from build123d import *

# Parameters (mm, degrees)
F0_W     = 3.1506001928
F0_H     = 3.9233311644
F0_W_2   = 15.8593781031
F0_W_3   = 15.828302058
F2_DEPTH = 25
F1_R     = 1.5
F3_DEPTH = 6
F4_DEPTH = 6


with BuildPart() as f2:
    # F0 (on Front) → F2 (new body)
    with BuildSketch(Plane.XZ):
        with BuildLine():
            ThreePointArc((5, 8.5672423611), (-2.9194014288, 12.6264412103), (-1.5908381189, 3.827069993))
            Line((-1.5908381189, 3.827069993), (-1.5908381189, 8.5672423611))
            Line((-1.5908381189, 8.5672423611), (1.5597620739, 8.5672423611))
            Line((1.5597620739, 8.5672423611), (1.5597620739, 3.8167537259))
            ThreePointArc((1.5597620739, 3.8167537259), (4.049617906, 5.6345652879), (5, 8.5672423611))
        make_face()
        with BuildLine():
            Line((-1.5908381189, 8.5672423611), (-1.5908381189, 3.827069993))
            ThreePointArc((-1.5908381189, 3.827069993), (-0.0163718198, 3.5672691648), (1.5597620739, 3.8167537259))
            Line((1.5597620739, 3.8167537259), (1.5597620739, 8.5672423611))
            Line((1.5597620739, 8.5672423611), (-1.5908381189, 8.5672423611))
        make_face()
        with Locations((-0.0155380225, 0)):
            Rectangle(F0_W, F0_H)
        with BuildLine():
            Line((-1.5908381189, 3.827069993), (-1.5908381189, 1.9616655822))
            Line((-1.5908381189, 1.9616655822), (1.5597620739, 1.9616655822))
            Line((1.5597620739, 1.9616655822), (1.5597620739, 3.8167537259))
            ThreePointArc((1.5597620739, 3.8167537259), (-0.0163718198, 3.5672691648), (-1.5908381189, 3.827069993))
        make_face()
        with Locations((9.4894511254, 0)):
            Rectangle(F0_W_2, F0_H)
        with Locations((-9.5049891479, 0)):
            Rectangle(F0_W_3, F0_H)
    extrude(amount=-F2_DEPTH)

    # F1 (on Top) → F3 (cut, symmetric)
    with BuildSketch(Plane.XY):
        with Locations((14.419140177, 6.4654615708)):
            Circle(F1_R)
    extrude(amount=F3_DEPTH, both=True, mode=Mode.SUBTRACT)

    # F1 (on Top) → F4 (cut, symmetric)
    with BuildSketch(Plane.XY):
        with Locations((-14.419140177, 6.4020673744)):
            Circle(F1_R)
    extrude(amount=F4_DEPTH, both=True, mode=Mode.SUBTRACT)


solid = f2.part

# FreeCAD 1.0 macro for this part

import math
import FreeCAD as App
import Part
import Sketcher

V = App.Vector

doc = App.newDocument("Part")
body = doc.addObject("PartDesign::Body", "Body")

sketch1 = body.newObject("Sketcher::SketchObject", "Sketch")
sketch1.AttachmentSupport = (doc.getObject("XZ_Plane"), [""])
sketch1.MapMode = "FlatFace"
sketch1.addGeometry([
    Part.ArcOfCircle(Part.Circle(V(0, 8.6, 0), V(0, 0, 1), 5), math.radians(0), math.radians(251)),
    Part.LineSegment(V(-1.6, 3.8, 0), V(-1.6, 2, 0)),
    Part.LineSegment(V(-1.6, 2, 0), V(-17.4, 2, 0)),
    Part.LineSegment(V(-17.4, 2, 0), V(-17.4, -2, 0)),
    Part.LineSegment(V(-17.4, -2, 0), V(17.4, -2, 0)),
    Part.LineSegment(V(17.4, -2, 0), V(17.4, 2, 0)),
    Part.LineSegment(V(17.4, 2, 0), V(1.6, 2, 0)),
    Part.LineSegment(V(1.6, 2, 0), V(1.6, 3.8, 0)),
    Part.ArcOfCircle(Part.Circle(V(0, 8.6, 0), V(0, 0, 1), 5), math.radians(-72), math.radians(0)),
], False)
sketch1.addConstraint([
    Sketcher.Constraint("Coincident", 0, 2, 1, 1),
    Sketcher.Constraint("Coincident", 1, 2, 2, 1),
    Sketcher.Constraint("Coincident", 2, 2, 3, 1),
    Sketcher.Constraint("Coincident", 3, 2, 4, 1),
    Sketcher.Constraint("Coincident", 4, 2, 5, 1),
    Sketcher.Constraint("Coincident", 5, 2, 6, 1),
    Sketcher.Constraint("Coincident", 6, 2, 7, 1),
    Sketcher.Constraint("Coincident", 7, 2, 8, 1),
    Sketcher.Constraint("Tangent", 8, 2, 0, 1),
    Sketcher.Constraint("Vertical", 1),
    Sketcher.Constraint("Horizontal", 2),
    Sketcher.Constraint("Vertical", 3),
    Sketcher.Constraint("Horizontal", 4),
    Sketcher.Constraint("Vertical", 5),
    Sketcher.Constraint("Horizontal", 6),
    Sketcher.Constraint("Vertical", 7),
    Sketcher.Constraint("Equal", 0, 8),
    Sketcher.Constraint("Symmetric", 2, 2, 4, 2, -1, 1),
    Sketcher.Constraint("PointOnObject", 0, 3, -2),
    Sketcher.Constraint("Horizontal", 2, 2, 5, 2),
    Sketcher.Constraint("Horizontal", 0, 3, 8, 2),
    Sketcher.Constraint("Radius", 0, 5.0),
    Sketcher.Constraint("DistanceX", 4, 1, 4, 2, 34.83828),
    Sketcher.Constraint("DistanceX", 6, 2, 6, 1, 15.859378),
    Sketcher.Constraint("DistanceY", 3, 2, 3, 1, 3.923331),
    Sketcher.Constraint("DistanceY", 7, 1, 7, 2, 1.855088),
    Sketcher.Constraint("DistanceX", 1, 2, 6, 2, 3.1506),
])
pad1 = body.newObject("PartDesign::Pad", "Pad")
pad1.Profile = sketch1
pad1.Length = 25
pad1.Reversed = True

sketch2 = body.newObject("Sketcher::SketchObject", "Sketch001")
sketch2.AttachmentSupport = (doc.getObject("XY_Plane"), [""])
sketch2.MapMode = "FlatFace"
sketch2.addGeometry(Part.Circle(V(14.4, 6.5, 0), V(0, 0, 1), 1.5), False)
sketch2.addConstraint([
    Sketcher.Constraint("Diameter", 0, 3.0),
    Sketcher.Constraint("DistanceX", -1, 1, 0, 3, 14.41914),
    Sketcher.Constraint("DistanceY", -1, 1, 0, 3, 6.465462),
])
pocket1 = body.newObject("PartDesign::Pocket", "Pocket")
pocket1.Profile = sketch2
pocket1.Length = 12
pocket1.Midplane = True

sketch3 = body.newObject("Sketcher::SketchObject", "Sketch002")
sketch3.AttachmentSupport = (doc.getObject("XY_Plane"), [""])
sketch3.MapMode = "FlatFace"
sketch3.addGeometry(Part.Circle(V(-14.4, 6.4, 0), V(0, 0, 1), 1.5), False)
sketch3.addConstraint([
    Sketcher.Constraint("Diameter", 0, 3.0),
    Sketcher.Constraint("DistanceX", 0, 3, -1, 1, 14.41914),
    Sketcher.Constraint("DistanceY", -1, 1, 0, 3, 6.402067),
])
pocket2 = body.newObject("PartDesign::Pocket", "Pocket001")
pocket2.Profile = sketch3
pocket2.Length = 12
pocket2.Midplane = True

doc.recompute()
